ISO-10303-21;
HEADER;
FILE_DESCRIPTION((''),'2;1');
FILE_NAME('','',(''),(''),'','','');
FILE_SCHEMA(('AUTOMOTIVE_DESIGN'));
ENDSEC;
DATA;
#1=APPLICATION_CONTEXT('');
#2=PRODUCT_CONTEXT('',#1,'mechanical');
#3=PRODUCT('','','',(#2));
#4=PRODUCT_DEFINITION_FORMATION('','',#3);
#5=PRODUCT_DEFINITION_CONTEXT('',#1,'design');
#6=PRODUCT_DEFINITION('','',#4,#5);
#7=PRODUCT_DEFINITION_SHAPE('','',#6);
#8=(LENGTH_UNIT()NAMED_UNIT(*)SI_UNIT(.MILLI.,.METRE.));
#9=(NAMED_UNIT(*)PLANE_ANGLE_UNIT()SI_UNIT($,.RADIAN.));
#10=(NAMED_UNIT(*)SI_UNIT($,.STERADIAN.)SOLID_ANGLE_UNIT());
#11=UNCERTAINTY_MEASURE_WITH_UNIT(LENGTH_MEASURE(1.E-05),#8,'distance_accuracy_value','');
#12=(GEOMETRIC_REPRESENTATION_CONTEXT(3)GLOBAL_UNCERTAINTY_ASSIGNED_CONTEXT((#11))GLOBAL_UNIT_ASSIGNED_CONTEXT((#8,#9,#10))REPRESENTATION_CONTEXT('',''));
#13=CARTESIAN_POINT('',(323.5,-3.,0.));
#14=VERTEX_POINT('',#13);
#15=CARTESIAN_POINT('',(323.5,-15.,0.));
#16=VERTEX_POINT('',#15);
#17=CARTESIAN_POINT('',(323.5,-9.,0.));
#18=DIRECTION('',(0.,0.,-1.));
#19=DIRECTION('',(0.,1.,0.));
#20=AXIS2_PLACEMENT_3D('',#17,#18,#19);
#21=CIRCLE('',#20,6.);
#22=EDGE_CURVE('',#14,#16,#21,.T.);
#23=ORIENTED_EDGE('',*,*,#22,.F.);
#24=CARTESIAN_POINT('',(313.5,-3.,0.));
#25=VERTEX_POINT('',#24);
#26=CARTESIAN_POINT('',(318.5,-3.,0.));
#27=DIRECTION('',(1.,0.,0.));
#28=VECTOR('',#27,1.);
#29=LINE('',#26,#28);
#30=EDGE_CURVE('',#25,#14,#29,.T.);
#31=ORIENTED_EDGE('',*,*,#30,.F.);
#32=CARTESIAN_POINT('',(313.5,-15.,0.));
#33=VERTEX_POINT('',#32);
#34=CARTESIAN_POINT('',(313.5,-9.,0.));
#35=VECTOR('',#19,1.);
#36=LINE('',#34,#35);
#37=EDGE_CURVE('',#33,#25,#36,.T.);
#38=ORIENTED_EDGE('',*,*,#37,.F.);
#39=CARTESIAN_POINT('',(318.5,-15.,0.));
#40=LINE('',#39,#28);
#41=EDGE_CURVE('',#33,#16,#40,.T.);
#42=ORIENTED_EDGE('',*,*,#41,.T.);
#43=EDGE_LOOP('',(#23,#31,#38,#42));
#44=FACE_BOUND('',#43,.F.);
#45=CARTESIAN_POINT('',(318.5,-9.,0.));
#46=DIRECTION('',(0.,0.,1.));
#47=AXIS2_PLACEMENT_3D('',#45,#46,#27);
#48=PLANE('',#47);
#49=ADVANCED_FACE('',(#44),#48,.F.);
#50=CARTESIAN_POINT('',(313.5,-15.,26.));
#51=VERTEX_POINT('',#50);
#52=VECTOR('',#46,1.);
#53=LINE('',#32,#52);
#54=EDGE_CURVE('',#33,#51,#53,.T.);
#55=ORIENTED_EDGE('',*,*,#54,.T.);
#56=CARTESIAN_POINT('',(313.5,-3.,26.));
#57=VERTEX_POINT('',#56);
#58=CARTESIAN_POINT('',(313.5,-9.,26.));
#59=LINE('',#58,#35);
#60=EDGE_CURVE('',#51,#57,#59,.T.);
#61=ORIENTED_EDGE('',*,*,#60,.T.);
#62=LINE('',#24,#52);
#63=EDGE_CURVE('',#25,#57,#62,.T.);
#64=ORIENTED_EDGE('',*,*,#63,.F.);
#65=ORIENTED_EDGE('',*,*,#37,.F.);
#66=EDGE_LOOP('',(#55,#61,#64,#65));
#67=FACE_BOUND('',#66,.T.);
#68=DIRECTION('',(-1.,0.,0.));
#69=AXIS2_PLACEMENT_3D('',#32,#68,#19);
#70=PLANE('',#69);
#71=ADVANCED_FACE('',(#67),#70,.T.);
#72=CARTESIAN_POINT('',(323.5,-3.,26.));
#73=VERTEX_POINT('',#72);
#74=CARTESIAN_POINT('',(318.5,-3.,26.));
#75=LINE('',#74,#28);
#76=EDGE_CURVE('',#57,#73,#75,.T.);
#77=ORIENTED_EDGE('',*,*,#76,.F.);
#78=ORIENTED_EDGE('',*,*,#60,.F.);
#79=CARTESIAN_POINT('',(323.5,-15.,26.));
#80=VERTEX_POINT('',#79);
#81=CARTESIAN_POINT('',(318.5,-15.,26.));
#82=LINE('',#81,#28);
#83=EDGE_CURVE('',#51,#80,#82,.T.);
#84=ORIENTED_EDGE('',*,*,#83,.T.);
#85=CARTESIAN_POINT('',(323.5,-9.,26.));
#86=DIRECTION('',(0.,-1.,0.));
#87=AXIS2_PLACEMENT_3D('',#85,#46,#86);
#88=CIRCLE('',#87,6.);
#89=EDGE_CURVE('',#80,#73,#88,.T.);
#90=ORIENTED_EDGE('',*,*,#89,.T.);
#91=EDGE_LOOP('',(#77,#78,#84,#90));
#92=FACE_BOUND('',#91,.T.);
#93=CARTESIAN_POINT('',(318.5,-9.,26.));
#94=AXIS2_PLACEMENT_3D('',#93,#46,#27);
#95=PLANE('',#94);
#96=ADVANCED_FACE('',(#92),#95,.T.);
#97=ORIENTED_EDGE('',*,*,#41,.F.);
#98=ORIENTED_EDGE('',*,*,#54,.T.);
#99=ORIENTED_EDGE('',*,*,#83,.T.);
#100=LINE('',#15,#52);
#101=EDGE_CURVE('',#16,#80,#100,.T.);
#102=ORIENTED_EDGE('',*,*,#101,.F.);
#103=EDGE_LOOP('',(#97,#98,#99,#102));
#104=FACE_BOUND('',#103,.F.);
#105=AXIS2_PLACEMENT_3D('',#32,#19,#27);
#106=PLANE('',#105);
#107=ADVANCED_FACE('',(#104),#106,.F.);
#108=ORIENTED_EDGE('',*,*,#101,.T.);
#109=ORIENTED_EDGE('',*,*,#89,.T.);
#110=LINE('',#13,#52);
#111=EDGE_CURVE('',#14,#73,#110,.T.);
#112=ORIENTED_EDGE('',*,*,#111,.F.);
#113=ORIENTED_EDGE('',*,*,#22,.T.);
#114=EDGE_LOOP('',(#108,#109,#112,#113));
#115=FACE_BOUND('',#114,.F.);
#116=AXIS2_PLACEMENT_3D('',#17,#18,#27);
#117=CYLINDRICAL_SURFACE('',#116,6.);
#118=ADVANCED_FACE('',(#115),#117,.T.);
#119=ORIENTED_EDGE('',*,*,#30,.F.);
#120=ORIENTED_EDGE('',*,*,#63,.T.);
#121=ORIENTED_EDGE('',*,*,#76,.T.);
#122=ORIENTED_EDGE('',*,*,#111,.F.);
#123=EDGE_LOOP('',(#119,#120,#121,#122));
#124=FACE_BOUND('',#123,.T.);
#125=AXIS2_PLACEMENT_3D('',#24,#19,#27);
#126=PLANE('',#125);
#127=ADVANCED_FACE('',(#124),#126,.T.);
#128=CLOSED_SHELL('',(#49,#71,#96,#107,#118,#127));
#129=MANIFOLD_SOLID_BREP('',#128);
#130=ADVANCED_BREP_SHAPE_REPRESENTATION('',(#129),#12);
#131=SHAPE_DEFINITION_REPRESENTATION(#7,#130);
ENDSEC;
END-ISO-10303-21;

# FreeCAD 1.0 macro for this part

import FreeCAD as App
import Part
import Sketcher

V = App.Vector
Q = App.Units.Quantity


def add_polygon(sketch, points):
    """Adds a closed chain of lines whose ends are joined by coincident constraints."""
    first, n = sketch.GeometryCount, len(points)
    for a, b in zip(points, points[1:] + points[:1]):
        sketch.addGeometry(Part.LineSegment(App.Vector(*a, 0), App.Vector(*b, 0)), False)
    for i in range(n):
        sketch.addConstraint(Sketcher.Constraint("Coincident", first + i, 2, first + (i + 1) % n, 1))

doc = App.newDocument("Part")
body = doc.addObject("PartDesign::Body", "Body")

# Sketch on XY plane
sketch1 = doc.addObject("Sketcher::SketchObject", "Sketch")
body.addObject(sketch1)
sketch1.AttachmentSupport = (doc.XY_Plane, [""])
sketch1.MapMode = "FlatFace"
add_polygon(sketch1, [(314, -3), (314, -15), (324, -15), (324, -3)])  # lines 0-3
sketch1.addConstraint(Sketcher.Constraint("Vertical", 0))
sketch1.addConstraint(Sketcher.Constraint("Horizontal", 1))
sketch1.addConstraint(Sketcher.Constraint("Vertical", 2))
sketch1.addConstraint(Sketcher.Constraint("Horizontal", 3))
sketch1.addConstraint(Sketcher.Constraint("DistanceX", 1, 1, 1, 2, Q("10 mm")))
sketch1.addConstraint(Sketcher.Constraint("DistanceY", 0, 2, 0, 1, Q("12 mm")))
sketch1.addConstraint(Sketcher.Constraint("DistanceY", 0, 2, -1, 1, Q("15 mm")))
sketch1.addConstraint(Sketcher.Constraint("DistanceX", -1, 1, 0, 2, Q("313.5 mm")))
pad1 = doc.addObject("PartDesign::Pad", "Pad")
body.addObject(pad1)
pad1.Profile = sketch1
pad1.Length = 26
body2 = doc.addObject("PartDesign::Body", "Body001")

# Sketch on XY plane
sketch2 = doc.addObject("Sketcher::SketchObject", "Sketch001")
body2.addObject(sketch2)
sketch2.AttachmentSupport = (doc.getObject("XY_Plane001"), [""])
sketch2.MapMode = "FlatFace"
sketch2.addGeometry(Part.Circle(V(324, -9, 0), V(0, 0, 1), 6), False)
sketch2.addConstraint(Sketcher.Constraint("Diameter", 0, Q("12 mm")))
sketch2.addConstraint(Sketcher.Constraint("DistanceY", 0, 3, -1, 1, Q("9 mm")))
sketch2.addConstraint(Sketcher.Constraint("DistanceX", -1, 1, 0, 3, Q("323.5 mm")))
pad2 = doc.addObject("PartDesign::Pad", "Pad001")
body2.addObject(pad2)
pad2.Profile = sketch2
pad2.Length = 26
doc.recompute()

boolean = doc.addObject("PartDesign::Boolean", "Boolean")
body2.addObject(boolean)
boolean.Type = "Fuse"
boolean.addObjects([body])

doc.recompute()
